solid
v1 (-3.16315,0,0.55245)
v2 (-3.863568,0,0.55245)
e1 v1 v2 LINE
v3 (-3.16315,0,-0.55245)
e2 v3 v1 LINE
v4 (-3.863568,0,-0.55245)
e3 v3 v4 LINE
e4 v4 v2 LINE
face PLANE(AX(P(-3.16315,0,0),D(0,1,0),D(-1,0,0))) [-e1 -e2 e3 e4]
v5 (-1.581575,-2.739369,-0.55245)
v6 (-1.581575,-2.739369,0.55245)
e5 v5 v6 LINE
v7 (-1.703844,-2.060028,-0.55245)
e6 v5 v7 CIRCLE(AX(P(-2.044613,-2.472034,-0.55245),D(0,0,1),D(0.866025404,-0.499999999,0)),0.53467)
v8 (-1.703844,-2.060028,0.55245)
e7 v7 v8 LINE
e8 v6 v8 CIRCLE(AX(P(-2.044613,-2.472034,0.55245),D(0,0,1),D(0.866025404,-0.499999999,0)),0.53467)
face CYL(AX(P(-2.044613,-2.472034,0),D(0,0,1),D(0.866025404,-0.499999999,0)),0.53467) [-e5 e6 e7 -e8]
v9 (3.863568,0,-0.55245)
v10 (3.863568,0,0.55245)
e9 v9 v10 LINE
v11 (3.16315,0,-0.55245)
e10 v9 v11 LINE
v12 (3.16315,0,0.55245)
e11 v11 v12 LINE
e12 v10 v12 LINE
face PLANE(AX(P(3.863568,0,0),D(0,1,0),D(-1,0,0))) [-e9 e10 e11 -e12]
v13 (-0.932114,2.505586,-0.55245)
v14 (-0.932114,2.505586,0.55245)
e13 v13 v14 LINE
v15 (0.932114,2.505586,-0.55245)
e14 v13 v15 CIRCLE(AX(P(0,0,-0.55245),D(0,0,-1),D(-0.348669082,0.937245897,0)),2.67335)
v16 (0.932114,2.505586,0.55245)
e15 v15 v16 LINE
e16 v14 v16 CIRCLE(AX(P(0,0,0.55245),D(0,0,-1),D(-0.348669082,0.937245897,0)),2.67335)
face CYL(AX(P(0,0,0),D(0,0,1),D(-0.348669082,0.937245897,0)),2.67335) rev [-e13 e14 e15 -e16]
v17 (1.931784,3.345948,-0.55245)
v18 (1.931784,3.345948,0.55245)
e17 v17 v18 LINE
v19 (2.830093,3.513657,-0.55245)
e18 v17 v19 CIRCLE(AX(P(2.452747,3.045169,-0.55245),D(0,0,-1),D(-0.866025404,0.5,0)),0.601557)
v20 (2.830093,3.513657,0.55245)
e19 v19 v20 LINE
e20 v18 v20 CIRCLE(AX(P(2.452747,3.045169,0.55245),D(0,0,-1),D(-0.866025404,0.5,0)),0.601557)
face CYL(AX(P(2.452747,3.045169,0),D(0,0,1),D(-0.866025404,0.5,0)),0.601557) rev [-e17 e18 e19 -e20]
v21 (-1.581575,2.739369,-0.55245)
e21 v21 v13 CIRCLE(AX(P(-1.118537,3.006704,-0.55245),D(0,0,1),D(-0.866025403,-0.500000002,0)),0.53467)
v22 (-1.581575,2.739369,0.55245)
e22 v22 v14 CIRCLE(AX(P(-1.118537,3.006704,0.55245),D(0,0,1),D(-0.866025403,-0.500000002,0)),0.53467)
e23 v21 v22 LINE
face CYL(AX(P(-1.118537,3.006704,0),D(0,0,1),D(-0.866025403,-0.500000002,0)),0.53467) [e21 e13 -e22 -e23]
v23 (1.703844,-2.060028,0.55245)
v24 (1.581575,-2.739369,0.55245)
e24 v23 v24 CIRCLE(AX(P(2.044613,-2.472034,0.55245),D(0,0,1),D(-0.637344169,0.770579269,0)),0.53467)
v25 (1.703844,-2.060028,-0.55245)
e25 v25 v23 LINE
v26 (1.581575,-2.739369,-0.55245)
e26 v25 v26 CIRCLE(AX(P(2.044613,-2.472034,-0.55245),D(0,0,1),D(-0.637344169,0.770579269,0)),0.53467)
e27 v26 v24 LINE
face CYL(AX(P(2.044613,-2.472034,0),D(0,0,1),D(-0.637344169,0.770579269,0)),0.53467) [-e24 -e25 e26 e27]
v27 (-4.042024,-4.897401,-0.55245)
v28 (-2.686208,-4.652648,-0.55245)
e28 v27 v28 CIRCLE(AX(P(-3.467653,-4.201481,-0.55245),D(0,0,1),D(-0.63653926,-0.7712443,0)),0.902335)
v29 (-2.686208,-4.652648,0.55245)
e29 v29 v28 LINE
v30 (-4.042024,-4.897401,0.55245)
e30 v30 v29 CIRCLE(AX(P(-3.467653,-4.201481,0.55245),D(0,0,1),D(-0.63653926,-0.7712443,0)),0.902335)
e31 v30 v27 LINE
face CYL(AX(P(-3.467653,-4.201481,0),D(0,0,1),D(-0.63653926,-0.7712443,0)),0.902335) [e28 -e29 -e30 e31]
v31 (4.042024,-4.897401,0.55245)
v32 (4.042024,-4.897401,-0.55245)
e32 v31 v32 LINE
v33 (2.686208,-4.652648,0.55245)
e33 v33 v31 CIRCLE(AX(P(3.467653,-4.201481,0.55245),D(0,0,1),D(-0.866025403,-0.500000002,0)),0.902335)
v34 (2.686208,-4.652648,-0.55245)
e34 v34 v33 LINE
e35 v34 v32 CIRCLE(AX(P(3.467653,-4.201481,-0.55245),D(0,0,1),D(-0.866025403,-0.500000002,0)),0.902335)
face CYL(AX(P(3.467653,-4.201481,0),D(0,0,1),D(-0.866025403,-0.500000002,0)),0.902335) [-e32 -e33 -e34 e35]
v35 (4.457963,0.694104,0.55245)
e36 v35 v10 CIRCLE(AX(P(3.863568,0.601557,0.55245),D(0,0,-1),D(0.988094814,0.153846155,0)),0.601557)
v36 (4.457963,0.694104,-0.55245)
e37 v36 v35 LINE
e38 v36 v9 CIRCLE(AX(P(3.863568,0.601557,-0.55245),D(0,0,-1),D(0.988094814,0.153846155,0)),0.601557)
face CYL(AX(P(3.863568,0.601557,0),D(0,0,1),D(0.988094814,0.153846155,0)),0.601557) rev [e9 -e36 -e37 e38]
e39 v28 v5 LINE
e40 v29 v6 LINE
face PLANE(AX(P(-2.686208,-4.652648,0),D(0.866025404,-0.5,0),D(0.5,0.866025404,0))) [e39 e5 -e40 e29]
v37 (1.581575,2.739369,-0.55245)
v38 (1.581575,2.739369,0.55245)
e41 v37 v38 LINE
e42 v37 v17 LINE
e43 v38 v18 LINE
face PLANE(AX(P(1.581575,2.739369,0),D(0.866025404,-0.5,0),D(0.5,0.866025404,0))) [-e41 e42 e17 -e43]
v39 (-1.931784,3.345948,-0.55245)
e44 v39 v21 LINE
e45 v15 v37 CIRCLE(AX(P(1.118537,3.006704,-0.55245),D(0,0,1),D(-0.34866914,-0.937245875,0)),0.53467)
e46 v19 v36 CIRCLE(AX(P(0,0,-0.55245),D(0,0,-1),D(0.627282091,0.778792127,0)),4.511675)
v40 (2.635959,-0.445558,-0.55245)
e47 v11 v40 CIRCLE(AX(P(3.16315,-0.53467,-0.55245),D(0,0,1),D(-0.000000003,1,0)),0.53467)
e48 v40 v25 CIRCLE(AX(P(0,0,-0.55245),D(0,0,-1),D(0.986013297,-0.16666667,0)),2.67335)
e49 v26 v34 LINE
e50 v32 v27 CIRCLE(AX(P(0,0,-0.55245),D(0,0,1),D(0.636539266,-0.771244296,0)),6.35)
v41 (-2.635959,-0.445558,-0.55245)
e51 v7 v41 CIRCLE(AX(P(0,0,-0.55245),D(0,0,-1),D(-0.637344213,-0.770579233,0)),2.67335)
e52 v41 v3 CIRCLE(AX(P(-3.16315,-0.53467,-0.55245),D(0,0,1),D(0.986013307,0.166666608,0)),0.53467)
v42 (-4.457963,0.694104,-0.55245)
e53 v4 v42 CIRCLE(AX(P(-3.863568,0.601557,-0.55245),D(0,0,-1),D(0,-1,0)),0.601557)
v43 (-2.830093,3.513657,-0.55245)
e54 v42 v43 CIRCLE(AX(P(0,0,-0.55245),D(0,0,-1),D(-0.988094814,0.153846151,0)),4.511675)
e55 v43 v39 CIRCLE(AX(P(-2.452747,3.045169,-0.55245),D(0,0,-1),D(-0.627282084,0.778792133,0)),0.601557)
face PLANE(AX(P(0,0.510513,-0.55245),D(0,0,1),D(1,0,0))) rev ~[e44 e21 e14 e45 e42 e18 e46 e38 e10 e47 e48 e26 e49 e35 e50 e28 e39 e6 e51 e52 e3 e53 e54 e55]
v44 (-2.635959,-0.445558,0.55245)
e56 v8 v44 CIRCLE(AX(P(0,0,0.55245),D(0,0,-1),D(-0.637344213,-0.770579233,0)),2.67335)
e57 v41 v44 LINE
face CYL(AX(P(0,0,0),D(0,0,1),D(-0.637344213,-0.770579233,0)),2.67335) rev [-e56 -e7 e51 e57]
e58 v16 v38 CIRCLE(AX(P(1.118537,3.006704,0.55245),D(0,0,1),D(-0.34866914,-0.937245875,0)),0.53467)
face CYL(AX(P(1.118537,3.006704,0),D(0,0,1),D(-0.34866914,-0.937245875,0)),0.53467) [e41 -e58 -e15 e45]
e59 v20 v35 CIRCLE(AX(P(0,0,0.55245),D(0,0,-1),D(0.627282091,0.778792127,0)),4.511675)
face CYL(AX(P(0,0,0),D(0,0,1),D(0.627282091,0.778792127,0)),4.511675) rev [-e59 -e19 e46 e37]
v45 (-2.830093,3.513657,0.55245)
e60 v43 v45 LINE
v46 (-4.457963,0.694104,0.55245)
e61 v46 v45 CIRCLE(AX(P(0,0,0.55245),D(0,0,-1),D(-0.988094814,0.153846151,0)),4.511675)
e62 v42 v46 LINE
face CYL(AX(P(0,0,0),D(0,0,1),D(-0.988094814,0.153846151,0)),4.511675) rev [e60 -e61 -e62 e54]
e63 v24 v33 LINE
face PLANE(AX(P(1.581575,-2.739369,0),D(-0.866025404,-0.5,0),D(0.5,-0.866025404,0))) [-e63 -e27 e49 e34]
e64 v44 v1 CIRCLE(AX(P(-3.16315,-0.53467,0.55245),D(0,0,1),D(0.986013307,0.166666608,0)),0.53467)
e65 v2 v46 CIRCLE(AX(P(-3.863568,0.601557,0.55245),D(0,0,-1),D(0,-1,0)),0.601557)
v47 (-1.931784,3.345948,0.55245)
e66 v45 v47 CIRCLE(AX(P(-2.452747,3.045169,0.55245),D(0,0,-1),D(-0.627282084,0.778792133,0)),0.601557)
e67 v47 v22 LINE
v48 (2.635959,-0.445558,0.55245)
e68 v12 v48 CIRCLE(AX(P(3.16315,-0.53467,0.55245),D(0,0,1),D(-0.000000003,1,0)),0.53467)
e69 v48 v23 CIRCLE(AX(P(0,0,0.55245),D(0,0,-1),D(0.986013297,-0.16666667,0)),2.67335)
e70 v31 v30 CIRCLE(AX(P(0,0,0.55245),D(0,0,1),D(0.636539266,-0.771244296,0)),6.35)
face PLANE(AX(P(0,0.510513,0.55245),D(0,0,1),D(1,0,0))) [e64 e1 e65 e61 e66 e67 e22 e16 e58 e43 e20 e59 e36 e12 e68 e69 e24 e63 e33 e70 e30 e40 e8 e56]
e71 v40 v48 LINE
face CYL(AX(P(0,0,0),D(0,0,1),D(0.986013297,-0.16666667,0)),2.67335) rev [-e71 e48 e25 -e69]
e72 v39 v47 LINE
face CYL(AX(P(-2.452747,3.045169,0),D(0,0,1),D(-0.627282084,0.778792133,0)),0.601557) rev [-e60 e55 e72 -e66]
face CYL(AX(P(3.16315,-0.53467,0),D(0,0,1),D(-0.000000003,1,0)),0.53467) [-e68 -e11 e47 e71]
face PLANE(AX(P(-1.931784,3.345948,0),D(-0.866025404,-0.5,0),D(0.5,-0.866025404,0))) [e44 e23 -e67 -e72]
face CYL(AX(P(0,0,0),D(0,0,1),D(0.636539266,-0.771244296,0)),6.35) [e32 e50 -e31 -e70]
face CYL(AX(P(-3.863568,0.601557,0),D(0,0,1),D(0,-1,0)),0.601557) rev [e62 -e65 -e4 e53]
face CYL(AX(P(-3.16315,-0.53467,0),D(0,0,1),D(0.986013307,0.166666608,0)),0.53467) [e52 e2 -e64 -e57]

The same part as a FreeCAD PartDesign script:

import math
import FreeCAD as App
import Part
import Sketcher
from FreeCAD import Vector
Q = App.Units.Quantity

doc = App.newDocument("Part")
body = doc.addObject("PartDesign::Body", "Body")

# Sketch on XY plane
sketch1 = doc.addObject("Sketcher::SketchObject", "Sketch")
body.addObject(sketch1)
sketch1.AttachmentSupport = (doc.XY_Plane, [""])
sketch1.MapMode = "FlatFace"
sketch1.addGeometry(Part.LineSegment(Vector(-2.7, -4.7, 0), Vector(-1.6, -2.7, 0)), False)
sketch1.addGeometry(Part.ArcOfCircle(Part.Circle(Vector(-2, -2.5, 0), Vector(0, 0, 1), 0.5), math.radians(-30), math.radians(50)), False)
sketch1.addGeometry(Part.ArcOfCircle(Part.Circle(Vector(0, 0, 0), Vector(0, 0, 1), 2.7), math.radians(-170), math.radians(-130)), False)
sketch1.addGeometry(Part.ArcOfCircle(Part.Circle(Vector(-3.2, -0.5, 0), Vector(0, 0, 1), 0.5), math.radians(10), math.radians(90)), False)
sketch1.addGeometry(Part.LineSegment(Vector(-3.2, 0, 0), Vector(-3.9, 0, 0)), False)
sketch1.addGeometry(Part.ArcOfCircle(Part.Circle(Vector(-3.9, 0.6, 0), Vector(0, 0, 1), 0.6), math.radians(171), math.radians(270)), False)
sketch1.addGeometry(Part.ArcOfCircle(Part.Circle(Vector(0, 0, 0), Vector(0, 0, 1), 4.5), math.radians(129), math.radians(171)), False)
sketch1.addGeometry(Part.ArcOfCircle(Part.Circle(Vector(-2.5, 3, 0), Vector(0, 0, 1), 0.6), math.radians(30), math.radians(129)), False)
sketch1.addGeometry(Part.LineSegment(Vector(-1.9, 3.3, 0), Vector(-1.6, 2.7, 0)), False)
sketch1.addGeometry(Part.ArcOfCircle(Part.Circle(Vector(-1.1, 3, 0), Vector(0, 0, 1), 0.5), math.radians(-150), math.radians(-70)), False)
sketch1.addGeometry(Part.ArcOfCircle(Part.Circle(Vector(0, 0, 0), Vector(0, 0, 1), 2.7), math.radians(70), math.radians(110)), False)
sketch1.addGeometry(Part.ArcOfCircle(Part.Circle(Vector(1.1, 3, 0), Vector(0, 0, 1), 0.5), math.radians(-110), math.radians(-30)), False)
sketch1.addGeometry(Part.LineSegment(Vector(1.6, 2.7, 0), Vector(1.9, 3.3, 0)), False)
sketch1.addGeometry(Part.ArcOfCircle(Part.Circle(Vector(2.5, 3, 0), Vector(0, 0, 1), 0.6), math.radians(51), math.radians(150)), False)
sketch1.addGeometry(Part.ArcOfCircle(Part.Circle(Vector(0, 0, 0), Vector(0, 0, 1), 4.5), math.radians(9), math.radians(51)), False)
sketch1.addGeometry(Part.ArcOfCircle(Part.Circle(Vector(3.9, 0.6, 0), Vector(0, 0, 1), 0.6), math.radians(-90), math.radians(9)), False)
sketch1.addGeometry(Part.LineSegment(Vector(3.9, 0, 0), Vector(3.2, 0, 0)), False)
sketch1.addGeometry(Part.ArcOfCircle(Part.Circle(Vector(3.2, -0.5, 0), Vector(0, 0, 1), 0.5), math.radians(90), math.radians(170)), False)
sketch1.addGeometry(Part.ArcOfCircle(Part.Circle(Vector(0, 0, 0), Vector(0, 0, 1), 2.7), math.radians(-50), math.radians(-10)), False)
sketch1.addGeometry(Part.ArcOfCircle(Part.Circle(Vector(2, -2.5, 0), Vector(0, 0, 1), 0.5), math.radians(130), math.radians(210)), False)
sketch1.addGeometry(Part.LineSegment(Vector(1.6, -2.7, 0), Vector(2.7, -4.7, 0)), False)
sketch1.addGeometry(Part.ArcOfCircle(Part.Circle(Vector(3.5, -4.2, 0), Vector(0, 0, 1), 0.9), math.radians(-150), math.radians(-50)), False)
sketch1.addGeometry(Part.ArcOfCircle(Part.Circle(Vector(0, 0, 0), Vector(0, 0, 1), 6.3), math.radians(-50), math.radians(230)), False)
sketch1.addGeometry(Part.ArcOfCircle(Part.Circle(Vector(-3.5, -4.2, 0), Vector(0, 0, 1), 0.9), math.radians(-130), math.radians(-30)), False)
sketch1.addConstraint(Sketcher.Constraint("Tangent", 0, 2, 1, 1))
sketch1.addConstraint(Sketcher.Constraint("Tangent", 1, 2, 2, 2))
sketch1.addConstraint(Sketcher.Constraint("Tangent", 2, 1, 3, 1))
sketch1.addConstraint(Sketcher.Constraint("Tangent", 3, 2, 4, 1))
sketch1.addConstraint(Sketcher.Constraint("Tangent", 4, 2, 5, 2))
sketch1.addConstraint(Sketcher.Constraint("Tangent", 5, 1, 6, 2))
sketch1.addConstraint(Sketcher.Constraint("Tangent", 6, 1, 7, 2))
sketch1.addConstraint(Sketcher.Constraint("Tangent", 7, 1, 8, 1))
sketch1.addConstraint(Sketcher.Constraint("Tangent", 8, 2, 9, 1))
sketch1.addConstraint(Sketcher.Constraint("Tangent", 9, 2, 10, 2))
sketch1.addConstraint(Sketcher.Constraint("Tangent", 10, 1, 11, 1))
sketch1.addConstraint(Sketcher.Constraint("Tangent", 11, 2, 12, 1))
sketch1.addConstraint(Sketcher.Constraint("Tangent", 12, 2, 13, 2))
sketch1.addConstraint(Sketcher.Constraint("Tangent", 13, 1, 14, 2))
sketch1.addConstraint(Sketcher.Constraint("Tangent", 14, 1, 15, 2))
sketch1.addConstraint(Sketcher.Constraint("Tangent", 15, 1, 16, 1))
sketch1.addConstraint(Sketcher.Constraint("Tangent", 16, 2, 17, 1))
sketch1.addConstraint(Sketcher.Constraint("Tangent", 17, 2, 18, 2))
sketch1.addConstraint(Sketcher.Constraint("Tangent", 18, 1, 19, 1))
sketch1.addConstraint(Sketcher.Constraint("Tangent", 19, 2, 20, 1))
sketch1.addConstraint(Sketcher.Constraint("Tangent", 20, 2, 21, 1))
sketch1.addConstraint(Sketcher.Constraint("Tangent", 21, 2, 22, 1))
sketch1.addConstraint(Sketcher.Constraint("Tangent", 22, 2, 23, 1))
sketch1.addConstraint(Sketcher.Constraint("Tangent", 23, 2, 0, 1))
sketch1.addConstraint(Sketcher.Constraint("Horizontal", 4))
sketch1.addConstraint(Sketcher.Constraint("Horizontal", 16))
sketch1.addConstraint(Sketcher.Constraint("Coincident", 2, 3, -1, 1))
sketch1.addConstraint(Sketcher.Constraint("Coincident", 6, 3, -1, 1))
sketch1.addConstraint(Sketcher.Constraint("Coincident", 10, 3, -1, 1))
sketch1.addConstraint(Sketcher.Constraint("Coincident", 14, 3, -1, 1))
sketch1.addConstraint(Sketcher.Constraint("Coincident", 18, 3, -1, 1))
sketch1.addConstraint(Sketcher.Constraint("Coincident", 22, 3, -1, 1))
sketch1.addConstraint(Sketcher.Constraint("Equal", 1, 3))
sketch1.addConstraint(Sketcher.Constraint("Equal", 5, 7))
sketch1.addConstraint(Sketcher.Constraint("Equal", 3, 9))
sketch1.addConstraint(Sketcher.Constraint("Equal", 2, 10))
sketch1.addConstraint(Sketcher.Constraint("Equal", 9, 11))
sketch1.addConstraint(Sketcher.Constraint("Equal", 7, 13))
sketch1.addConstraint(Sketcher.Constraint("Equal", 6, 14))
sketch1.addConstraint(Sketcher.Constraint("Equal", 13, 15))
sketch1.addConstraint(Sketcher.Constraint("Equal", 11, 17))
sketch1.addConstraint(Sketcher.Constraint("Equal", 10, 18))
sketch1.addConstraint(Sketcher.Constraint("Equal", 17, 19))
sketch1.addConstraint(Sketcher.Constraint("Equal", 21, 23))
sketch1.addConstraint(Sketcher.Constraint("Symmetric", 0, 2, 11, 2, -1, 1))
sketch1.addConstraint(Sketcher.Constraint("Symmetric", 4, 2, 15, 1, -1, 1))
sketch1.addConstraint(Sketcher.Constraint("Symmetric", 8, 2, 19, 2, -1, 1))
sketch1.addConstraint(Sketcher.Constraint("Symmetric", 8, 2, 11, 2, -2))
sketch1.addConstraint(Sketcher.Constraint("Parallel", 0, 12))
sketch1.addConstraint(Sketcher.Constraint("Radius", 22, Q("0.25 in")))
sketch1.addConstraint(Sketcher.Constraint("Angle", 0, Q("60 deg")))
sketch1.addConstraint(Sketcher.Constraint("Radius", 1, Q("0.53467 mm")))
sketch1.addConstraint(Sketcher.Constraint("Radius", 2, Q("2.67335 mm")))
sketch1.addConstraint(Sketcher.Constraint("Radius", 5, Q("0.601557 mm")))
sketch1.addConstraint(Sketcher.Constraint("Radius", 6, Q("4.511675 mm")))
sketch1.addConstraint(Sketcher.Constraint("Radius", 21, Q("0.902335 mm")))
pad1 = doc.addObject("PartDesign::Pad", "Pad")
body.addObject(pad1)
pad1.Profile = sketch1
pad1.Type = "TwoLengths"
pad1.Length = 0.55245
pad1.Length2 = 0.55245

doc.recompute()
